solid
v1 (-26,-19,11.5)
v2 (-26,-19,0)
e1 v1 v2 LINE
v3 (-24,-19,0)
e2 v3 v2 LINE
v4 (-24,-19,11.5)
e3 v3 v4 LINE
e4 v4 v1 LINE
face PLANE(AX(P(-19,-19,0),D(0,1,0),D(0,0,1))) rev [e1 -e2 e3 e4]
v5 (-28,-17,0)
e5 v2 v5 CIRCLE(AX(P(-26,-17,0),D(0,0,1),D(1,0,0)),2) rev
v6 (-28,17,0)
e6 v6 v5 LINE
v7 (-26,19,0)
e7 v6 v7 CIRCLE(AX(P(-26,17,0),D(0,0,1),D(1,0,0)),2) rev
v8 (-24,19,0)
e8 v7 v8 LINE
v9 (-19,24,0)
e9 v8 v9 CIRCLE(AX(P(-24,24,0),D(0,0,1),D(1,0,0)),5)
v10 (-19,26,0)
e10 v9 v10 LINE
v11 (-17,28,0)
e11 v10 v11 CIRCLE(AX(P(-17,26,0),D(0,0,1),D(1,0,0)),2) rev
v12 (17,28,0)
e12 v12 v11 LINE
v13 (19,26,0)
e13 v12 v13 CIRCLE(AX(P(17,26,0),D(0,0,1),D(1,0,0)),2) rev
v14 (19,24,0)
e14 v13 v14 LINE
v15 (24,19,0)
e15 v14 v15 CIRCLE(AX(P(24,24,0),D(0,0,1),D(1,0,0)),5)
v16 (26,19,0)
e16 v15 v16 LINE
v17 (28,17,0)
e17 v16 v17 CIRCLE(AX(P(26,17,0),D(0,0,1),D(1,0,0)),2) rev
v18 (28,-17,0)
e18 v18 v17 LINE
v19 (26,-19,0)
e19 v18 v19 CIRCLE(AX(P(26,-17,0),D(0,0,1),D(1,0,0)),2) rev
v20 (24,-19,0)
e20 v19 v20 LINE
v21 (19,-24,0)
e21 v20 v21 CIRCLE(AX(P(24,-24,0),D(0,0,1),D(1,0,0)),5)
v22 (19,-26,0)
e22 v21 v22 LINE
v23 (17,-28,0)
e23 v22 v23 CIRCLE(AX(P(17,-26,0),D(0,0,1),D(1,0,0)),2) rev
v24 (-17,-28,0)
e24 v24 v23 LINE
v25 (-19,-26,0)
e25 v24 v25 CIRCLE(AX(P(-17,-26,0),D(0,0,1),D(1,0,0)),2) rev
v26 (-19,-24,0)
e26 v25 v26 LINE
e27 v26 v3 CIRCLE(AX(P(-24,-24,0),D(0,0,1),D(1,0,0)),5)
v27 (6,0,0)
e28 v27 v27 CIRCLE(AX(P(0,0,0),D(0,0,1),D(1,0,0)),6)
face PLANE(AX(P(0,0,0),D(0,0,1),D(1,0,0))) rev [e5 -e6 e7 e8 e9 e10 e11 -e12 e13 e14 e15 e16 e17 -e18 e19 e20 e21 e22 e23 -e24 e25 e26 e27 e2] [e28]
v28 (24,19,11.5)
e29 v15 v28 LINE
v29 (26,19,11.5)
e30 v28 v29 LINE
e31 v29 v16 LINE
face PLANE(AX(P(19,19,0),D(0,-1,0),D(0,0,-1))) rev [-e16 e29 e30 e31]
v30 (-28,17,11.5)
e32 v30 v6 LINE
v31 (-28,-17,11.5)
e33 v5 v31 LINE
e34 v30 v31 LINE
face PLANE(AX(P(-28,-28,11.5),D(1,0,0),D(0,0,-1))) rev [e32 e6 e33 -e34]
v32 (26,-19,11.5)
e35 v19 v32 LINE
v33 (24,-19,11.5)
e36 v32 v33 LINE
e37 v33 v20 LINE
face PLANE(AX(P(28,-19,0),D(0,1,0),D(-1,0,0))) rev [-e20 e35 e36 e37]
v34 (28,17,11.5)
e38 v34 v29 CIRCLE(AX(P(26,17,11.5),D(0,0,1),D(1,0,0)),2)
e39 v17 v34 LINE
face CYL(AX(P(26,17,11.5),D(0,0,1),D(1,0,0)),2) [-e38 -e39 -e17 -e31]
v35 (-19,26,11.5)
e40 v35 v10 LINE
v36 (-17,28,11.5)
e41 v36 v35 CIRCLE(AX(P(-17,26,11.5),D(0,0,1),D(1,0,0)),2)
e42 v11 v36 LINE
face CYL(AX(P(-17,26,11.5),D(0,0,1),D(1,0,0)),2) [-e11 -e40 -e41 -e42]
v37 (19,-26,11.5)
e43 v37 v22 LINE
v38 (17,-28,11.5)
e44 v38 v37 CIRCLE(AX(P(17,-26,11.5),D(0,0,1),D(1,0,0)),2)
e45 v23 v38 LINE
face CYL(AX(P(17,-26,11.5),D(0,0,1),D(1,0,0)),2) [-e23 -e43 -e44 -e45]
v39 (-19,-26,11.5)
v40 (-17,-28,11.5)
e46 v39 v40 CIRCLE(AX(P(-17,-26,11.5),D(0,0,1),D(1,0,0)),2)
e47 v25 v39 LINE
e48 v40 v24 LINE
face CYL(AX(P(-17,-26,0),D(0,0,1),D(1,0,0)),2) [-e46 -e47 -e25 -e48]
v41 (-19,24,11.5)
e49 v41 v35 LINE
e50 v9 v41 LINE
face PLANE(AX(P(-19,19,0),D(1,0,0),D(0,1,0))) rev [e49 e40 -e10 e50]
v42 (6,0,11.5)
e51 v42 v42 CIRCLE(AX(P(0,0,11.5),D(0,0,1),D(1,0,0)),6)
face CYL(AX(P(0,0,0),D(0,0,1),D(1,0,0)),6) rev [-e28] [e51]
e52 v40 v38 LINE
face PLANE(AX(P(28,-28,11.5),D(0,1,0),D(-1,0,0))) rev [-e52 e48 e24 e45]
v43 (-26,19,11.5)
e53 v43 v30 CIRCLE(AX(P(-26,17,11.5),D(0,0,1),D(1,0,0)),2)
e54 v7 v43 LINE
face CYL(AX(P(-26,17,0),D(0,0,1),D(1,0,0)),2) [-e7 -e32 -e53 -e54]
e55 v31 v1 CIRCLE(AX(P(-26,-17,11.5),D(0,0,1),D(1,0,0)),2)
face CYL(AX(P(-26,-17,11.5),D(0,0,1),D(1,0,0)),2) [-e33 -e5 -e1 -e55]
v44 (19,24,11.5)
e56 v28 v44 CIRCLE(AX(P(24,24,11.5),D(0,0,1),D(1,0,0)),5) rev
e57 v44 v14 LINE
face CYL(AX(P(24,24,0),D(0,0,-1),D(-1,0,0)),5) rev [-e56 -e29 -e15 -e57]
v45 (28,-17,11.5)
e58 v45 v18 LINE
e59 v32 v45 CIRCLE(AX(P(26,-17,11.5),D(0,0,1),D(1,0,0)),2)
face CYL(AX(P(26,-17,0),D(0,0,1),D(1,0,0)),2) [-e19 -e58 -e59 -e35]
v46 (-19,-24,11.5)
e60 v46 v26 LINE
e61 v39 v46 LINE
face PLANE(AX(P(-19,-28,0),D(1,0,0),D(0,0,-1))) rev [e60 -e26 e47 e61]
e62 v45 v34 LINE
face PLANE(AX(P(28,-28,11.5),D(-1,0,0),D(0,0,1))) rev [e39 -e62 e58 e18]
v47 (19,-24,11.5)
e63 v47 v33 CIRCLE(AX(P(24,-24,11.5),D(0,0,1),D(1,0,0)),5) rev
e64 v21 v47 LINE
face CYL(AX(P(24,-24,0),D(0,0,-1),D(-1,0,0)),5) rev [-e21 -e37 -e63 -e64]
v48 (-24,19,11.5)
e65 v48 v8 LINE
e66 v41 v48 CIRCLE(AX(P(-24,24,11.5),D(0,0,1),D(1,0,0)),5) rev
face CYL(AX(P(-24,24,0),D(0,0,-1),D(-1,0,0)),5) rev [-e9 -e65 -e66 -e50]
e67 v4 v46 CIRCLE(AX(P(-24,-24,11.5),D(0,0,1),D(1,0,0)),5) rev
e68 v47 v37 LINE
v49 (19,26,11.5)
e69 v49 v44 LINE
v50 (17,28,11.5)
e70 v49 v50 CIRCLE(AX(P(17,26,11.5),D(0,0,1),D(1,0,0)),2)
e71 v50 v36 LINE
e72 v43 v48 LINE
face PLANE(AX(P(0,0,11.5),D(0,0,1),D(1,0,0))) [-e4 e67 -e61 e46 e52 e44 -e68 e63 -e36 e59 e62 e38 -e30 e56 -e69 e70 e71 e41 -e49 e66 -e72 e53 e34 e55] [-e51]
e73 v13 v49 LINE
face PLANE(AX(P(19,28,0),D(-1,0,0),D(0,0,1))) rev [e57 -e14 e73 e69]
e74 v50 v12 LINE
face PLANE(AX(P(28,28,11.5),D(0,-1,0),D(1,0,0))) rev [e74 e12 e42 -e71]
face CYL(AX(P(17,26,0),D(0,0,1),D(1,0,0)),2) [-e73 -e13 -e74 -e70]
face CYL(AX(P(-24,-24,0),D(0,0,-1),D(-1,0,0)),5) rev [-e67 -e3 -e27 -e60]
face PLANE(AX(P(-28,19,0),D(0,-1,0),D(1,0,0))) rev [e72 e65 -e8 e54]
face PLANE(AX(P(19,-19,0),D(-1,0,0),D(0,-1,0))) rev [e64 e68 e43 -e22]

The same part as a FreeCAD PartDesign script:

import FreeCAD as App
import Part
import Sketcher
Q = App.Units.Quantity


def edges_at(feature, points):
    """Names of the edges that pass closest to the given points."""
    edges = feature.Shape.Edges
    near = lambda p: min(range(len(edges)), key=lambda i: edges[i].distToShape(Part.Vertex(*p))[0])
    return sorted({f"Edge{near(p) + 1}" for p in points})

doc = App.newDocument("Part")
body = doc.addObject("PartDesign::Body", "Body")

# Sketch on XY plane
sketch1 = body.newObject("Sketcher::SketchObject", "Sketch")
sketch1.AttachmentSupport = (doc.getObject("XY_Plane"), [""])
sketch1.MapMode = "FlatFace"
sketch1.addGeometry([
    Part.LineSegment(App.Vector(-28, 28, 0), App.Vector(-28, -28, 0)),
    Part.LineSegment(App.Vector(-28, -28, 0), App.Vector(28, -28, 0)),
    Part.LineSegment(App.Vector(28, -28, 0), App.Vector(28, 28, 0)),
    Part.LineSegment(App.Vector(28, 28, 0), App.Vector(-28, 28, 0)),
], False)
sketch1.addConstraint([
    Sketcher.Constraint("Coincident", 0, 2, 1, 1),
    Sketcher.Constraint("Coincident", 1, 2, 2, 1),
    Sketcher.Constraint("Coincident", 2, 2, 3, 1),
    Sketcher.Constraint("Coincident", 3, 2, 0, 1),
    Sketcher.Constraint("Vertical", 0),
    Sketcher.Constraint("Horizontal", 1),
    Sketcher.Constraint("Vertical", 2),
    Sketcher.Constraint("Horizontal", 3),
    Sketcher.Constraint("Symmetric", 0, 2, 2, 2, -1, 1),
    Sketcher.Constraint("Equal", 3, 0),
    Sketcher.Constraint("DistanceX", 1, 1, 1, 2, Q("56 mm")),
])
pad1 = body.newObject("PartDesign::Pad", "Pad")
pad1.Profile = sketch1
pad1.Length = 11.5

# Sketch on XY plane
sketch2 = body.newObject("Sketcher::SketchObject", "Sketch001")
sketch2.AttachmentSupport = (doc.getObject("XY_Plane"), [""])
sketch2.MapMode = "FlatFace"
sketch2.AttachmentOffset = App.Placement(App.Vector(0, 0, 11.5), App.Rotation())
sketch2.addGeometry([
    Part.LineSegment(App.Vector(19, 28, 0), App.Vector(19, 19, 0)),
    Part.LineSegment(App.Vector(19, 19, 0), App.Vector(28, 19, 0)),
    Part.LineSegment(App.Vector(28, 19, 0), App.Vector(28, 28, 0)),
    Part.LineSegment(App.Vector(28, 28, 0), App.Vector(19, 28, 0)),
], False)
sketch2.addConstraint([
    Sketcher.Constraint("Coincident", 0, 2, 1, 1),
    Sketcher.Constraint("Coincident", 1, 2, 2, 1),
    Sketcher.Constraint("Coincident", 2, 2, 3, 1),
    Sketcher.Constraint("Coincident", 3, 2, 0, 1),
    Sketcher.Constraint("Vertical", 0),
    Sketcher.Constraint("Horizontal", 1),
    Sketcher.Constraint("Vertical", 2),
    Sketcher.Constraint("Horizontal", 3),
    Sketcher.Constraint("Equal", 3, 0),
    Sketcher.Constraint("DistanceX", 1, 1, 1, 2, Q("9 mm")),
    Sketcher.Constraint("DistanceX", -1, 1, 0, 2, Q("19 mm")),
    Sketcher.Constraint("DistanceY", -1, 1, 0, 2, Q("19 mm")),
])
pocket1 = body.newObject("PartDesign::Pocket", "Pocket")
pocket1.Profile = sketch2
pocket1.Length = 11.5
doc.recompute()

polarpattern = body.newObject("PartDesign::PolarPattern", "PolarPattern")
polarpattern.Originals = [pocket1]
polarpattern.Axis = (doc.getObject("Z_Axis"), [""])
polarpattern.Angle = 360
polarpattern.Occurrences = 4
body.Tip = polarpattern
doc.recompute()

fillet = body.newObject("PartDesign::Fillet", "Fillet")
fillet.Base = (polarpattern, edges_at(polarpattern, [
    (19, 19, 5.75),
    (-19, 19, 5.75),
    (-19, -19, 5.75),
    (19, -19, 5.75),
]))
fillet.Radius = 5
doc.recompute()

fillet2 = body.newObject("PartDesign::Fillet", "Fillet001")
fillet2.Base = (fillet, edges_at(fillet, [
    (19, 28, 5.75),
    (28, 19, 5.75),
    (-28, 19, 5.75),
    (-19, 28, 5.75),
    (-19, -28, 5.75),
    (-28, -19, 5.75),
    (28, -19, 5.75),
    (19, -28, 5.75),
]))
fillet2.Radius = 2

# Sketch on XY plane
sketch3 = body.newObject("Sketcher::SketchObject", "Sketch002")
sketch3.AttachmentSupport = (doc.getObject("XY_Plane"), [""])
sketch3.MapMode = "FlatFace"
sketch3.AttachmentOffset = App.Placement(App.Vector(0, 0, 11.5), App.Rotation())
sketch3.addGeometry(Part.Circle(App.Vector(0, 0, 0), App.Vector(0, 0, 1), 6), False)
sketch3.addConstraint([
    Sketcher.Constraint("Coincident", 0, 3, -1, 1),
    Sketcher.Constraint("Diameter", 0, Q("12 mm")),
])
pocket2 = body.newObject("PartDesign::Pocket", "Pocket001")
pocket2.Profile = sketch3
pocket2.Length = 11.5

doc.recompute()
